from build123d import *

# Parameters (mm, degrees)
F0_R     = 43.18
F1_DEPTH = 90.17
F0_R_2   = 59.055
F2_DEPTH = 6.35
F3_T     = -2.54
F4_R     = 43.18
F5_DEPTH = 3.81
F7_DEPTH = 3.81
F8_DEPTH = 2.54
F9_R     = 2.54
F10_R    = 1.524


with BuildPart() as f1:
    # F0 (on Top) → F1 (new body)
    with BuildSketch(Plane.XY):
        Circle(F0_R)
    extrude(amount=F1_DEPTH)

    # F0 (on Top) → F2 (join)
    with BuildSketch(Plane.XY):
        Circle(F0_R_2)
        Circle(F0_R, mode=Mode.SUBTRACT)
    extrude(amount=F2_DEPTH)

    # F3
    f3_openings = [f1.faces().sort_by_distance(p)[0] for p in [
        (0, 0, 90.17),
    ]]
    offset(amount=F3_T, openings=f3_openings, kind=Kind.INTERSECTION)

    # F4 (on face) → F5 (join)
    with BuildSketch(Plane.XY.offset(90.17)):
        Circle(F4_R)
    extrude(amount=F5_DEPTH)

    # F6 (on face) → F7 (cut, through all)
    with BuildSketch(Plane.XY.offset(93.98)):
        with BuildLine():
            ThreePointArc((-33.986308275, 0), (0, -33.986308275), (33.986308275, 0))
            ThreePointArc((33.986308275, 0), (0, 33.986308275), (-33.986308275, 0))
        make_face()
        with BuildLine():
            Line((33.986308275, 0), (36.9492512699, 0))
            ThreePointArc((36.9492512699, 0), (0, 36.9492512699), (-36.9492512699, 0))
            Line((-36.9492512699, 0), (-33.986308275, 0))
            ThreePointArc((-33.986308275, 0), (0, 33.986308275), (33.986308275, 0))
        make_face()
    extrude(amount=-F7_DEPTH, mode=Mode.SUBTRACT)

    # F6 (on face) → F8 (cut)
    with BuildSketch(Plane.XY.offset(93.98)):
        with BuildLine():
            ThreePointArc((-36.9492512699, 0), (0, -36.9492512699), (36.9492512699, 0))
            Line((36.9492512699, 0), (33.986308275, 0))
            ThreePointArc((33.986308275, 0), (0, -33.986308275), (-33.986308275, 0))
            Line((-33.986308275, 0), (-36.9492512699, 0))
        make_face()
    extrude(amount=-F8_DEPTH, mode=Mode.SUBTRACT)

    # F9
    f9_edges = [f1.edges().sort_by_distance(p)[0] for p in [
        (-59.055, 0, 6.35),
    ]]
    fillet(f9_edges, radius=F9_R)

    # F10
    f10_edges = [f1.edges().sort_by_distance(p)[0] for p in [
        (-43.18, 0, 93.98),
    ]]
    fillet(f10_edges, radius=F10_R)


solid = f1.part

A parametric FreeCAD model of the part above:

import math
import FreeCAD as App
import Part
import Sketcher
Q = App.Units.Quantity


def edges_at(feature, points):
    """Names of the edges that pass closest to the given points."""
    edges = feature.Shape.Edges
    near = lambda p: min(range(len(edges)), key=lambda i: edges[i].distToShape(Part.Vertex(*p))[0])
    return sorted({f"Edge{near(p) + 1}" for p in points})


def faces_at(feature, points):
    """Names of the faces that lie closest to the given points."""
    faces = feature.Shape.Faces
    near = lambda p: min(range(len(faces)), key=lambda i: faces[i].distToShape(Part.Vertex(*p))[0])
    return sorted({f"Face{near(p) + 1}" for p in points})

doc = App.newDocument("Part")
body = doc.addObject("PartDesign::Body", "Body")

# Sketch on XY plane
sketch1 = body.newObject("Sketcher::SketchObject", "Sketch")
sketch1.AttachmentSupport = (doc.getObject("XY_Plane"), [""])
sketch1.MapMode = "FlatFace"
sketch1.addGeometry(Part.Circle(App.Vector(0, 0, 0), App.Vector(0, 0, 1), 43), False)
sketch1.addConstraint([
    Sketcher.Constraint("Coincident", 0, 3, -1, 1),
    Sketcher.Constraint("Diameter", 0, Q("3.4 in")),
])
pad1 = body.newObject("PartDesign::Pad", "Pad")
pad1.Profile = sketch1
pad1.Length = Q("3.55 in")

# Sketch on XY plane
sketch2 = body.newObject("Sketcher::SketchObject", "Sketch001")
sketch2.AttachmentSupport = (doc.getObject("XY_Plane"), [""])
sketch2.MapMode = "FlatFace"
sketch2.addGeometry([
    Part.Circle(App.Vector(0, 0, 0), App.Vector(0, 0, 1), 59),
    Part.Circle(App.Vector(0, 0, 0), App.Vector(0, 0, 1), 43),
], False)
sketch2.addConstraint([
    Sketcher.Constraint("Coincident", 0, 3, -1, 1),
    Sketcher.Constraint("Coincident", 1, 3, -1, 1),
    Sketcher.Constraint("Diameter", 1, Q("3.4 in")),
    Sketcher.Constraint("Diameter", 0, Q("4.65 in")),
])
pad2 = body.newObject("PartDesign::Pad", "Pad001")
pad2.Profile = sketch2
pad2.Length = Q("0.25 in")
doc.recompute()

thickness = body.newObject("PartDesign::Thickness", "Thickness")
thickness.Base = (pad2, faces_at(pad2, [(0, 0, 90.17)]))
thickness.Value = Q("0.1 in")
thickness.Reversed = True
thickness.Join = "Intersection"

# Sketch on XY plane
sketch3 = body.newObject("Sketcher::SketchObject", "Sketch002")
sketch3.AttachmentSupport = (doc.getObject("XY_Plane"), [""])
sketch3.MapMode = "FlatFace"
sketch3.AttachmentOffset = App.Placement(App.Vector(0, 0, 3.55 * 25.4), App.Rotation())
sketch3.addGeometry(Part.Circle(App.Vector(0, 0, 0), App.Vector(0, 0, 1), 43), False)
sketch3.addConstraint([
    Sketcher.Constraint("Coincident", 0, 3, -1, 1),
    Sketcher.Constraint("Diameter", 0, Q("3.4 in")),
])
pad3 = body.newObject("PartDesign::Pad", "Pad002")
pad3.Profile = sketch3
pad3.Length = Q("0.15 in")

# Sketch on XY plane
sketch4 = body.newObject("Sketcher::SketchObject", "Sketch003")
sketch4.AttachmentSupport = (doc.getObject("XY_Plane"), [""])
sketch4.MapMode = "FlatFace"
sketch4.AttachmentOffset = App.Placement(App.Vector(0, 0, 3.7 * 25.4), App.Rotation())
sketch4.addGeometry([
    Part.ArcOfCircle(Part.Circle(App.Vector(0, 0, 0), App.Vector(0, 0, 1), 34), math.radians(180), math.radians(360)),
    Part.LineSegment(App.Vector(34, 0, 0), App.Vector(36.9, 0, 0)),
    Part.ArcOfCircle(Part.Circle(App.Vector(0, 0, 0), App.Vector(0, 0, 1), 36.9), math.radians(0), math.radians(180)),
    Part.LineSegment(App.Vector(-36.9, 0, 0), App.Vector(-34, 0, 0)),
], False)
sketch4.addConstraint([
    Sketcher.Constraint("Coincident", 0, 2, 1, 1),
    Sketcher.Constraint("Coincident", 1, 2, 2, 1),
    Sketcher.Constraint("Coincident", 2, 2, 3, 1),
    Sketcher.Constraint("Coincident", 3, 2, 0, 1),
    Sketcher.Constraint("Horizontal", 1),
    Sketcher.Constraint("Horizontal", 3),
    Sketcher.Constraint("Coincident", 0, 3, -1, 1),
    Sketcher.Constraint("Coincident", 2, 3, -1, 1),
    Sketcher.Constraint("PointOnObject", 0, 2, -1),
    Sketcher.Constraint("PointOnObject", 2, 2, -1),
    Sketcher.Constraint("Radius", 0, Q("33.986308 mm")),
    Sketcher.Constraint("Radius", 2, Q("36.949251 mm")),
])
pocket1 = body.newObject("PartDesign::Pocket", "Pocket")
pocket1.Profile = sketch4
pocket1.Length = Q("0.15 in")

# Sketch on XY plane
sketch5 = body.newObject("Sketcher::SketchObject", "Sketch004")
sketch5.AttachmentSupport = (doc.getObject("XY_Plane"), [""])
sketch5.MapMode = "FlatFace"
sketch5.AttachmentOffset = App.Placement(App.Vector(0, 0, 3.7 * 25.4), App.Rotation())
sketch5.addGeometry([
    Part.ArcOfCircle(Part.Circle(App.Vector(0, 0, 0), App.Vector(0, 0, 1), 36.9), math.radians(180), math.radians(360)),
    Part.LineSegment(App.Vector(36.9, 0, 0), App.Vector(34, 0, 0)),
    Part.ArcOfCircle(Part.Circle(App.Vector(0, 0, 0), App.Vector(0, 0, 1), 34), math.radians(180), math.radians(360)),
    Part.LineSegment(App.Vector(-34, 0, 0), App.Vector(-36.9, 0, 0)),
], False)
sketch5.addConstraint([
    Sketcher.Constraint("Coincident", 0, 2, 1, 1),
    Sketcher.Constraint("Coincident", 1, 2, 2, 2),
    Sketcher.Constraint("Coincident", 2, 1, 3, 1),
    Sketcher.Constraint("Coincident", 3, 2, 0, 1),
    Sketcher.Constraint("Horizontal", 1),
    Sketcher.Constraint("Horizontal", 3),
    Sketcher.Constraint("Coincident", 0, 3, -1, 1),
    Sketcher.Constraint("Coincident", 2, 3, -1, 1),
    Sketcher.Constraint("PointOnObject", 0, 2, -1),
    Sketcher.Constraint("PointOnObject", 2, 1, -1),
    Sketcher.Constraint("Radius", 0, Q("36.949251 mm")),
    Sketcher.Constraint("Radius", 2, Q("33.986308 mm")),
])
pocket2 = body.newObject("PartDesign::Pocket", "Pocket001")
pocket2.Profile = sketch5
pocket2.Length = Q("0.1 in")
doc.recompute()

fillet = body.newObject("PartDesign::Fillet", "Fillet")
fillet.Base = (pocket2, edges_at(pocket2, [(-59.055, 0, 6.35)]))
fillet.Radius = Q("0.1 in")
doc.recompute()

fillet2 = body.newObject("PartDesign::Fillet", "Fillet001")
fillet2.Base = (fillet, edges_at(fillet, [(-43.18, 0, 93.98)]))
fillet2.Radius = Q("0.06 in")

doc.recompute()
